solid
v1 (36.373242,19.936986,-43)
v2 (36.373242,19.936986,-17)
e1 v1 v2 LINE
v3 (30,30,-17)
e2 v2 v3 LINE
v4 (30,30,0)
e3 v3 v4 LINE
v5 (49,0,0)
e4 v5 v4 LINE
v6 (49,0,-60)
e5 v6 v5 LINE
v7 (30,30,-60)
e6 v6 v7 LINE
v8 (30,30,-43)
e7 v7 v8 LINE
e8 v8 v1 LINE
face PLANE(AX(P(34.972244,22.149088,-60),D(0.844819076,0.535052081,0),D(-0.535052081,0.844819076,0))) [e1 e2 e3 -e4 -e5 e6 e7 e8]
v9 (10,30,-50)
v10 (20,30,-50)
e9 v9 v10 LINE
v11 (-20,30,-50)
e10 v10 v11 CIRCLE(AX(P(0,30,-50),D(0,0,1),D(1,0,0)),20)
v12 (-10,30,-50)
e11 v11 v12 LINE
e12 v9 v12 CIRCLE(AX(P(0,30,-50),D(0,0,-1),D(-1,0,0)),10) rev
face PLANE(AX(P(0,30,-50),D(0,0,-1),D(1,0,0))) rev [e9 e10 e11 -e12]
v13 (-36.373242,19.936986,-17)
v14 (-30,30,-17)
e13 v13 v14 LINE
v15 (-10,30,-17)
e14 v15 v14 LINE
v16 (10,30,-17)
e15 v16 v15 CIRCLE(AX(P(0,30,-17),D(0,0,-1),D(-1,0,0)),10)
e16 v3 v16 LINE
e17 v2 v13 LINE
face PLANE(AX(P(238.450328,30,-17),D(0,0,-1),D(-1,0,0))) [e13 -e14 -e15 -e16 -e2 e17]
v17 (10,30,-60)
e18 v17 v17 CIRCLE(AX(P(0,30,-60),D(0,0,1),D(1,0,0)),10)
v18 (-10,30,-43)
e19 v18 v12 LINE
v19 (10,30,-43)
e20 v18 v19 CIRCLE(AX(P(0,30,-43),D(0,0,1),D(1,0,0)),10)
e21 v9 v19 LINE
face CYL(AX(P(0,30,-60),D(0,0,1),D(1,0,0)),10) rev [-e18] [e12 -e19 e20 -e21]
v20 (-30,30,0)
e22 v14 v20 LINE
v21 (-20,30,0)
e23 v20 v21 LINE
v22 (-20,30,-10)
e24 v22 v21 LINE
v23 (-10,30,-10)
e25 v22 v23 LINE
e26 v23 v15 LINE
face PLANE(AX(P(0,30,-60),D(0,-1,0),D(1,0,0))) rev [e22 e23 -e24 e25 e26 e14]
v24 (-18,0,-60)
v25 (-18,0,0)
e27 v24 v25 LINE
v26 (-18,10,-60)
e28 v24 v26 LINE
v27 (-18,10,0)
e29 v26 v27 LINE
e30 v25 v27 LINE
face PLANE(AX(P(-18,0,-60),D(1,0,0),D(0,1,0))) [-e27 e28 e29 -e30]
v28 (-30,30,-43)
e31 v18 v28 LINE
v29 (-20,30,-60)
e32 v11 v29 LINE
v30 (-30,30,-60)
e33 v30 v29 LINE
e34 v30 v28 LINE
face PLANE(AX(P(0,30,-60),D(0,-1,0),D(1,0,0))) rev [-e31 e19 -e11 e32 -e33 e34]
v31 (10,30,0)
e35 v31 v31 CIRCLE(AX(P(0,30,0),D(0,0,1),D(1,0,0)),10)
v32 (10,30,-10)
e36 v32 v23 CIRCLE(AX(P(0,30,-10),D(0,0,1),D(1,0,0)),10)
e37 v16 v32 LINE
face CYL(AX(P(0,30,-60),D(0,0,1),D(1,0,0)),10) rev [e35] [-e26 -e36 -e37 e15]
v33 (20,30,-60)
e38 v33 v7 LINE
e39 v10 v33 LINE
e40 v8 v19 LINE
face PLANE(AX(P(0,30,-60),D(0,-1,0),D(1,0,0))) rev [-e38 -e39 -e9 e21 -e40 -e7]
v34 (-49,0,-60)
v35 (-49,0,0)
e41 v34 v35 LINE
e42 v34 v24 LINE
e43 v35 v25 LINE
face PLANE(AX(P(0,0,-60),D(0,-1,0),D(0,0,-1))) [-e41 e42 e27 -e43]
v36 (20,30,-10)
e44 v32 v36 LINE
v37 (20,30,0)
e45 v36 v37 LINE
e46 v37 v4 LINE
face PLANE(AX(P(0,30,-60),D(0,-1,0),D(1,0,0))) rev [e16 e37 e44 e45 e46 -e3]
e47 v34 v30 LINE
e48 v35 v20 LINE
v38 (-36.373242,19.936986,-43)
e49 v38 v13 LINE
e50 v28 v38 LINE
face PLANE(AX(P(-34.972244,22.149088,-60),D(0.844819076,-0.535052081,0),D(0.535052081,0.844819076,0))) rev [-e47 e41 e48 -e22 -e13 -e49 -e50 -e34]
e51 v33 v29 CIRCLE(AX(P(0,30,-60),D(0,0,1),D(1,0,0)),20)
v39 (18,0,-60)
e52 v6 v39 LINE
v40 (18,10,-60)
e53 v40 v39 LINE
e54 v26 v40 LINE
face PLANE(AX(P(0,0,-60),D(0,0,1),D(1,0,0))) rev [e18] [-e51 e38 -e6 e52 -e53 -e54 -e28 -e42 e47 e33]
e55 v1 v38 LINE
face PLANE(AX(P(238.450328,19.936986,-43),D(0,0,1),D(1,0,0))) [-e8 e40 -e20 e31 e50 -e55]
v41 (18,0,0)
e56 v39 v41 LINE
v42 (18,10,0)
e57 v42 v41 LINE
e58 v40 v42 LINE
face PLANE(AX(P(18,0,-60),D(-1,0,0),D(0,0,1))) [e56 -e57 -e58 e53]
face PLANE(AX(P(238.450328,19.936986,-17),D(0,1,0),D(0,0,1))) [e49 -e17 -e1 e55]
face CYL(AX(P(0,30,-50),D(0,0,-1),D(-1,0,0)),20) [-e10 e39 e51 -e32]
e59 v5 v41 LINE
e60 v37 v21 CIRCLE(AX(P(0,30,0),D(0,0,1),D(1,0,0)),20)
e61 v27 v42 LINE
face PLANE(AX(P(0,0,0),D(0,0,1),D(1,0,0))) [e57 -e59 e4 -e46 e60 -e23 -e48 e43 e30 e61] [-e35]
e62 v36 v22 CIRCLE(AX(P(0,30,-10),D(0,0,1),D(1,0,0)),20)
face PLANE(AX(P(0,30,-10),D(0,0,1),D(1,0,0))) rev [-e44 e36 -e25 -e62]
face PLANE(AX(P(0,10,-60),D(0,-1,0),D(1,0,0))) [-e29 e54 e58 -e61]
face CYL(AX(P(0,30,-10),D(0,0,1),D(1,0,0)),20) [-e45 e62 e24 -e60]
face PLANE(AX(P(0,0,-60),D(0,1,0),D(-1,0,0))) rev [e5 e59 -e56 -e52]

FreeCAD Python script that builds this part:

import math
import FreeCAD as App
import Part
import Sketcher


def add_polygon(sketch, points):
    """Adds a closed chain of lines whose ends are joined by coincident constraints."""
    first, n = sketch.GeometryCount, len(points)
    for a, b in zip(points, points[1:] + points[:1]):
        sketch.addGeometry(Part.LineSegment(App.Vector(*a, 0), App.Vector(*b, 0)), False)
    for i in range(n):
        sketch.addConstraint(Sketcher.Constraint("Coincident", first + i, 2, first + (i + 1) % n, 1))

doc = App.newDocument("Part")
body = doc.addObject("PartDesign::Body", "Body")

sketch1 = body.newObject("Sketcher::SketchObject", "Sketch")
sketch1.AttachmentSupport = (doc.getObject("XY_Plane"), [""])
sketch1.MapMode = "FlatFace"
add_polygon(sketch1, [(-30, 30), (-49, 0), (-18, 0), (-18, 10), (18, 10), (18, 0), (49, 0), (30, 30)])
sketch1.addConstraint([
    Sketcher.Constraint("Horizontal", 1),
    Sketcher.Constraint("Vertical", 2),
    Sketcher.Constraint("Horizontal", 3),
    Sketcher.Constraint("Vertical", 4),
    Sketcher.Constraint("Horizontal", 5),
    Sketcher.Constraint("Horizontal", 7),
    Sketcher.Constraint("Symmetric", 1, 2, 4, 2, -1, 1),
    Sketcher.Constraint("Symmetric", 0, 2, 5, 2, -2),
    Sketcher.Constraint("Equal", 0, 6),
    Sketcher.Constraint("DistanceX", 1, 1, 1, 2, 31.0),
    Sketcher.Constraint("DistanceX", 3, 1, 3, 2, 36.0),
    Sketcher.Constraint("DistanceX", 7, 2, 7, 1, 60.0),
    Sketcher.Constraint("DistanceY", 2, 1, 2, 2, 10.0),
    Sketcher.Constraint("DistanceY", -1, 1, 6, 2, 30.0),
])
pad1 = body.newObject("PartDesign::Pad", "Pad")
pad1.Profile = sketch1
pad1.Length = 60
pad1.Reversed = True

sketch2 = body.newObject("Sketcher::SketchObject", "Sketch001")
sketch2.AttachmentSupport = (doc.getObject("YZ_Plane"), [""])
sketch2.MapMode = "FlatFace"
sketch2.AttachmentOffset = App.Placement(App.Vector(0, 0, 30), App.Rotation())
add_polygon(sketch2, [(20, -17), (20, -43), (375, -43), (375, -17)])
sketch2.addConstraint([
    Sketcher.Constraint("Vertical", 0),
    Sketcher.Constraint("Horizontal", 1),
    Sketcher.Constraint("Vertical", 2),
    Sketcher.Constraint("Horizontal", 3),
    Sketcher.Constraint("DistanceY", 0, 2, 0, 1, 26.0),
    Sketcher.Constraint("DistanceY", 0, 2, -1, 1, 43.0),
    Sketcher.Constraint("DistanceX", 1, 1, 1, 2, 354.648456),
    Sketcher.Constraint("DistanceX", -1, 1, 1, 2, 374.585441),
])
pocket1 = body.newObject("PartDesign::Pocket", "Pocket")
pocket1.Profile = sketch2
pocket1.Type = "ThroughAll"
pocket1.Midplane = True

sketch3 = body.newObject("Sketcher::SketchObject", "Sketch002")
sketch3.AttachmentSupport = (doc.getObject("XY_Plane"), [""])
sketch3.MapMode = "FlatFace"
sketch3.addGeometry([
    Part.LineSegment(App.Vector(-20, 30, 0), App.Vector(20, 30, 0)),
    Part.ArcOfCircle(Part.Circle(App.Vector(0, 30, 0), App.Vector(0, 0, 1), 20), math.radians(0), math.radians(180)),
], False)
sketch3.addConstraint([
    Sketcher.Constraint("Coincident", 0, 1, 1, 2),
    Sketcher.Constraint("Coincident", 1, 1, 0, 2),
    Sketcher.Constraint("Horizontal", 0),
    Sketcher.Constraint("PointOnObject", 1, 3, -2),
    Sketcher.Constraint("Horizontal", 1, 3, 0, 1),
    Sketcher.Constraint("Radius", 1, 20.0),
    Sketcher.Constraint("DistanceY", -1, 1, 1, 3, 30.0),
])
pad2 = body.newObject("PartDesign::Pad", "Pad001")
pad2.Profile = sketch3
pad2.Length = 10
pad2.Reversed = True

sketch4 = body.newObject("Sketcher::SketchObject", "Sketch003")
sketch4.AttachmentSupport = (doc.getObject("XY_Plane"), [""])
sketch4.MapMode = "FlatFace"
sketch4.addGeometry(Part.Circle(App.Vector(0, 30, 0), App.Vector(0, 0, 1), 10), False)
sketch4.addConstraint([
    Sketcher.Constraint("PointOnObject", 0, 3, -2),
    Sketcher.Constraint("Diameter", 0, 20.0),
    Sketcher.Constraint("DistanceY", -1, 1, 0, 3, 30.0),
])
pocket2 = body.newObject("PartDesign::Pocket", "Pocket001")
pocket2.Profile = sketch4
pocket2.Type = "ThroughAll"
doc.recompute()

datumplane = body.newObject("PartDesign::Plane", "DatumPlane")
datumplane.AttachmentSupport = (doc.getObject("XY_Plane"), [""])
datumplane.MapMode = "FlatFace"
datumplane.AttachmentOffset = App.Placement(App.Vector(0, 0, -30), App.Rotation())
mirrored = body.newObject("PartDesign::Mirrored", "Mirrored")
mirrored.Originals = [pad2]
mirrored.MirrorPlane = (datumplane, [""])
body.Tip = mirrored
doc.recompute()

datumplane2 = body.newObject("PartDesign::Plane", "DatumPlane001")
datumplane2.AttachmentSupport = (doc.getObject("XY_Plane"), [""])
datumplane2.MapMode = "FlatFace"
datumplane2.AttachmentOffset = App.Placement(App.Vector(0, 0, -30), App.Rotation())
mirrored2 = body.newObject("PartDesign::Mirrored", "Mirrored001")
mirrored2.Originals = [pocket2]
mirrored2.MirrorPlane = (datumplane2, [""])
body.Tip = mirrored2

doc.recompute()
